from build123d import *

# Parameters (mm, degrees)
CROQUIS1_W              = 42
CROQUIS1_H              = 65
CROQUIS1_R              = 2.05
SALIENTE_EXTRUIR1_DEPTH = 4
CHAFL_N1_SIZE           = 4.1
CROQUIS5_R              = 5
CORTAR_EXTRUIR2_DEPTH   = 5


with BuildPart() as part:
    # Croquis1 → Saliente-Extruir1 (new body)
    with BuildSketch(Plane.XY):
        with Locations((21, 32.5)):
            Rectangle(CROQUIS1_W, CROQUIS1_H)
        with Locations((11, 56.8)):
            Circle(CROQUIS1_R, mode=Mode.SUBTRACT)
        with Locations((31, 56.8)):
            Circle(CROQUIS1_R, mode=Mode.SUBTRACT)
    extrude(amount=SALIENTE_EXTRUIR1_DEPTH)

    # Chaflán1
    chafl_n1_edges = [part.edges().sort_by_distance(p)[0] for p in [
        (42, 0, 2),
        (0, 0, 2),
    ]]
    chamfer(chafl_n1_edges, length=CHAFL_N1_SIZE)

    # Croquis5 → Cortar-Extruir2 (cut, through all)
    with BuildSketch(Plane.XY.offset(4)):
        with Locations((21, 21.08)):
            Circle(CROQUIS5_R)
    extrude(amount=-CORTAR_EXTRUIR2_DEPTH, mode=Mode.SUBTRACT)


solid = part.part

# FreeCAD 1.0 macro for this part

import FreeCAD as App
import Part
import Sketcher

V = App.Vector


def edges_at(feature, points):
    """Names of the edges that pass closest to the given points."""
    edges = feature.Shape.Edges
    near = lambda p: min(range(len(edges)), key=lambda i: edges[i].distToShape(Part.Vertex(*p))[0])
    return sorted({f"Edge{near(p) + 1}" for p in points})


def add_polygon(sketch, points):
    """Adds a closed chain of lines whose ends are joined by coincident constraints."""
    first, n = sketch.GeometryCount, len(points)
    for a, b in zip(points, points[1:] + points[:1]):
        sketch.addGeometry(Part.LineSegment(App.Vector(*a, 0), App.Vector(*b, 0)), False)
    for i in range(n):
        sketch.addConstraint(Sketcher.Constraint("Coincident", first + i, 2, first + (i + 1) % n, 1))

doc = App.newDocument("Part")
body = doc.addObject("PartDesign::Body", "Body")

# Sketch on XY plane
sketch1 = body.newObject("Sketcher::SketchObject", "Sketch")
sketch1.AttachmentSupport = (doc.getObject("XY_Plane"), [""])
sketch1.MapMode = "FlatFace"
add_polygon(sketch1, [(0, 65), (0, 0), (42, 0), (42, 65)])  # lines 0-3
sketch1.addGeometry(Part.Circle(V(11, 56.8, 0), V(0, 0, 1), 2.05), False)  # 4
sketch1.addGeometry(Part.Circle(V(31, 56.8, 0), V(0, 0, 1), 2.05), False)  # 5
sketch1.addConstraint(Sketcher.Constraint("Vertical", 0))
sketch1.addConstraint(Sketcher.Constraint("Horizontal", 1))
sketch1.addConstraint(Sketcher.Constraint("Vertical", 2))
sketch1.addConstraint(Sketcher.Constraint("Horizontal", 3))
sketch1.addConstraint(Sketcher.Constraint("Coincident", 0, 2, -1, 1))
sketch1.addConstraint(Sketcher.Constraint("Equal", 4, 5))
sketch1.addConstraint(Sketcher.Constraint("Horizontal", 4, 3, 5, 3))
sketch1.addConstraint(Sketcher.Constraint("Diameter", 4, 4.1))
sketch1.addConstraint(Sketcher.Constraint("DistanceX", 1, 1, 1, 2, 42.0))
sketch1.addConstraint(Sketcher.Constraint("DistanceY", 0, 2, 0, 1, 65.0))
sketch1.addConstraint(Sketcher.Constraint("DistanceX", -1, 1, 4, 3, 11.0))
sketch1.addConstraint(Sketcher.Constraint("DistanceX", -1, 1, 5, 3, 31.0))
sketch1.addConstraint(Sketcher.Constraint("DistanceY", -1, 1, 4, 3, 56.8))
pad1 = body.newObject("PartDesign::Pad", "Pad")
pad1.Profile = sketch1
pad1.Length = 4
doc.recompute()

chamfer = body.newObject("PartDesign::Chamfer", "Chamfer")
chamfer.Base = (pad1, edges_at(pad1, [(42, 0, 2), (0, 0, 2)]))
chamfer.Size = 4.1

# Sketch on XY plane
sketch2 = body.newObject("Sketcher::SketchObject", "Sketch001")
sketch2.AttachmentSupport = (doc.getObject("XY_Plane"), [""])
sketch2.MapMode = "FlatFace"
sketch2.AttachmentOffset = App.Placement(V(0, 0, 4), App.Rotation())
sketch2.addGeometry(Part.Circle(V(21, 21.08, 0), V(0, 0, 1), 5), False)
sketch2.addConstraint(Sketcher.Constraint("Diameter", 0, 10.0))
sketch2.addConstraint(Sketcher.Constraint("DistanceX", -1, 1, 0, 3, 21.0))
sketch2.addConstraint(Sketcher.Constraint("DistanceY", -1, 1, 0, 3, 21.08))
pocket1 = body.newObject("PartDesign::Pocket", "Pocket")
pocket1.Profile = sketch2
pocket1.Type = "ThroughAll"

doc.recompute()
